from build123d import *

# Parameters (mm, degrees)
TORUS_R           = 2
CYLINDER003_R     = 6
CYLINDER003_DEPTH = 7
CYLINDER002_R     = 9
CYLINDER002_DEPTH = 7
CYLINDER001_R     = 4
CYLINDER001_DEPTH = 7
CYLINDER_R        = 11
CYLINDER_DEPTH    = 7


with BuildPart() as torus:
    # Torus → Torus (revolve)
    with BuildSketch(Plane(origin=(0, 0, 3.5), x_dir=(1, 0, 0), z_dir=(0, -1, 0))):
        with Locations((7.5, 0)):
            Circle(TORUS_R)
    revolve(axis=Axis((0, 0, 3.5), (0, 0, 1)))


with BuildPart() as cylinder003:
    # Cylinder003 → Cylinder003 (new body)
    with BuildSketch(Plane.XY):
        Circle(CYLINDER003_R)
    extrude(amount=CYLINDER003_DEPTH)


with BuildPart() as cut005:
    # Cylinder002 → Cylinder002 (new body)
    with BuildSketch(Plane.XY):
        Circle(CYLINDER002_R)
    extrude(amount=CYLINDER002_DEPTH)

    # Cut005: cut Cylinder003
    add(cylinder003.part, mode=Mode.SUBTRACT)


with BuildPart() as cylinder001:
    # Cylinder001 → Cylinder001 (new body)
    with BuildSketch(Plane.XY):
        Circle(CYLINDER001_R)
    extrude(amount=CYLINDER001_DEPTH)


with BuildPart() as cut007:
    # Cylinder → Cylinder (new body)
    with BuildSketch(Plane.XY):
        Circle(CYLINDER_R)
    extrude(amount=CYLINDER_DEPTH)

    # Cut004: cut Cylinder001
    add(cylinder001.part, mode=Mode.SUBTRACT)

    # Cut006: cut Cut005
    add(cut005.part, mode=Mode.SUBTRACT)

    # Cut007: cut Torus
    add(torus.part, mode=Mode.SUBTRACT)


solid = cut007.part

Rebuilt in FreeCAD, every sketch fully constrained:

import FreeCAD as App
import Part
import Sketcher
Q = App.Units.Quantity

doc = App.newDocument("Part")
body = doc.addObject("PartDesign::Body", "Body")

sketch1 = body.newObject("Sketcher::SketchObject", "Sketch")
sketch1.AttachmentSupport = (doc.getObject("XZ_Plane"), [""])
sketch1.MapMode = "FlatFace"
sketch1.addGeometry(Part.Circle(App.Vector(7.5, 3.5, 0), App.Vector(0, 0, 1), 2), False)
sketch1.addConstraint(Sketcher.Constraint("Diameter", 0, Q("4 mm")))
sketch1.addConstraint(Sketcher.Constraint("DistanceX", -1, 1, 0, 3, Q("7.5 mm")))
sketch1.addConstraint(Sketcher.Constraint("DistanceY", -1, 1, 0, 3, Q("3.5 mm")))
revolution = body.newObject("PartDesign::Revolution", "Revolution")
revolution.Profile = sketch1
revolution.ReferenceAxis = (sketch1, ["V_Axis"])
revolution.Angle = 360
body2 = doc.addObject("PartDesign::Body", "Body001")

sketch2 = body2.newObject("Sketcher::SketchObject", "Sketch001")
sketch2.AttachmentSupport = (doc.getObject("XY_Plane001"), [""])
sketch2.MapMode = "FlatFace"
sketch2.addGeometry(Part.Circle(App.Vector(0, 0, 0), App.Vector(0, 0, 1), 6), False)
sketch2.addConstraint(Sketcher.Constraint("Coincident", 0, 3, -1, 1))
sketch2.addConstraint(Sketcher.Constraint("Diameter", 0, Q("12 mm")))
pad1 = body2.newObject("PartDesign::Pad", "Pad")
pad1.Profile = sketch2
pad1.Length = 7
body3 = doc.addObject("PartDesign::Body", "Body002")

sketch3 = body3.newObject("Sketcher::SketchObject", "Sketch002")
sketch3.AttachmentSupport = (doc.getObject("XY_Plane002"), [""])
sketch3.MapMode = "FlatFace"
sketch3.addGeometry(Part.Circle(App.Vector(0, 0, 0), App.Vector(0, 0, 1), 9), False)
sketch3.addConstraint(Sketcher.Constraint("Coincident", 0, 3, -1, 1))
sketch3.addConstraint(Sketcher.Constraint("Diameter", 0, Q("18 mm")))
pad2 = body3.newObject("PartDesign::Pad", "Pad001")
pad2.Profile = sketch3
pad2.Length = 7
doc.recompute()

boolean = body3.newObject("PartDesign::Boolean", "Boolean")
boolean.Type = "Cut"
boolean.addObjects([body2])
body4 = doc.addObject("PartDesign::Body", "Body003")

sketch4 = body4.newObject("Sketcher::SketchObject", "Sketch003")
sketch4.AttachmentSupport = (doc.getObject("XY_Plane003"), [""])
sketch4.MapMode = "FlatFace"
sketch4.addGeometry(Part.Circle(App.Vector(0, 0, 0), App.Vector(0, 0, 1), 4), False)
sketch4.addConstraint(Sketcher.Constraint("Coincident", 0, 3, -1, 1))
sketch4.addConstraint(Sketcher.Constraint("Diameter", 0, Q("8 mm")))
pad3 = body4.newObject("PartDesign::Pad", "Pad002")
pad3.Profile = sketch4
pad3.Length = 7
body5 = doc.addObject("PartDesign::Body", "Body004")
body5.AllowCompound = True

sketch5 = body5.newObject("Sketcher::SketchObject", "Sketch004")
sketch5.AttachmentSupport = (doc.getObject("XY_Plane004"), [""])
sketch5.MapMode = "FlatFace"
sketch5.addGeometry(Part.Circle(App.Vector(0, 0, 0), App.Vector(0, 0, 1), 11), False)
sketch5.addConstraint(Sketcher.Constraint("Coincident", 0, 3, -1, 1))
sketch5.addConstraint(Sketcher.Constraint("Diameter", 0, Q("22 mm")))
pad4 = body5.newObject("PartDesign::Pad", "Pad003")
pad4.Profile = sketch5
pad4.Length = 7
doc.recompute()

boolean2 = body5.newObject("PartDesign::Boolean", "Boolean001")
boolean2.Type = "Cut"
boolean2.addObjects([body4])
doc.recompute()

boolean3 = body5.newObject("PartDesign::Boolean", "Boolean002")
boolean3.Type = "Cut"
boolean3.addObjects([body3])
doc.recompute()

boolean4 = body5.newObject("PartDesign::Boolean", "Boolean003")
boolean4.Type = "Cut"
boolean4.addObjects([body])

doc.recompute()
